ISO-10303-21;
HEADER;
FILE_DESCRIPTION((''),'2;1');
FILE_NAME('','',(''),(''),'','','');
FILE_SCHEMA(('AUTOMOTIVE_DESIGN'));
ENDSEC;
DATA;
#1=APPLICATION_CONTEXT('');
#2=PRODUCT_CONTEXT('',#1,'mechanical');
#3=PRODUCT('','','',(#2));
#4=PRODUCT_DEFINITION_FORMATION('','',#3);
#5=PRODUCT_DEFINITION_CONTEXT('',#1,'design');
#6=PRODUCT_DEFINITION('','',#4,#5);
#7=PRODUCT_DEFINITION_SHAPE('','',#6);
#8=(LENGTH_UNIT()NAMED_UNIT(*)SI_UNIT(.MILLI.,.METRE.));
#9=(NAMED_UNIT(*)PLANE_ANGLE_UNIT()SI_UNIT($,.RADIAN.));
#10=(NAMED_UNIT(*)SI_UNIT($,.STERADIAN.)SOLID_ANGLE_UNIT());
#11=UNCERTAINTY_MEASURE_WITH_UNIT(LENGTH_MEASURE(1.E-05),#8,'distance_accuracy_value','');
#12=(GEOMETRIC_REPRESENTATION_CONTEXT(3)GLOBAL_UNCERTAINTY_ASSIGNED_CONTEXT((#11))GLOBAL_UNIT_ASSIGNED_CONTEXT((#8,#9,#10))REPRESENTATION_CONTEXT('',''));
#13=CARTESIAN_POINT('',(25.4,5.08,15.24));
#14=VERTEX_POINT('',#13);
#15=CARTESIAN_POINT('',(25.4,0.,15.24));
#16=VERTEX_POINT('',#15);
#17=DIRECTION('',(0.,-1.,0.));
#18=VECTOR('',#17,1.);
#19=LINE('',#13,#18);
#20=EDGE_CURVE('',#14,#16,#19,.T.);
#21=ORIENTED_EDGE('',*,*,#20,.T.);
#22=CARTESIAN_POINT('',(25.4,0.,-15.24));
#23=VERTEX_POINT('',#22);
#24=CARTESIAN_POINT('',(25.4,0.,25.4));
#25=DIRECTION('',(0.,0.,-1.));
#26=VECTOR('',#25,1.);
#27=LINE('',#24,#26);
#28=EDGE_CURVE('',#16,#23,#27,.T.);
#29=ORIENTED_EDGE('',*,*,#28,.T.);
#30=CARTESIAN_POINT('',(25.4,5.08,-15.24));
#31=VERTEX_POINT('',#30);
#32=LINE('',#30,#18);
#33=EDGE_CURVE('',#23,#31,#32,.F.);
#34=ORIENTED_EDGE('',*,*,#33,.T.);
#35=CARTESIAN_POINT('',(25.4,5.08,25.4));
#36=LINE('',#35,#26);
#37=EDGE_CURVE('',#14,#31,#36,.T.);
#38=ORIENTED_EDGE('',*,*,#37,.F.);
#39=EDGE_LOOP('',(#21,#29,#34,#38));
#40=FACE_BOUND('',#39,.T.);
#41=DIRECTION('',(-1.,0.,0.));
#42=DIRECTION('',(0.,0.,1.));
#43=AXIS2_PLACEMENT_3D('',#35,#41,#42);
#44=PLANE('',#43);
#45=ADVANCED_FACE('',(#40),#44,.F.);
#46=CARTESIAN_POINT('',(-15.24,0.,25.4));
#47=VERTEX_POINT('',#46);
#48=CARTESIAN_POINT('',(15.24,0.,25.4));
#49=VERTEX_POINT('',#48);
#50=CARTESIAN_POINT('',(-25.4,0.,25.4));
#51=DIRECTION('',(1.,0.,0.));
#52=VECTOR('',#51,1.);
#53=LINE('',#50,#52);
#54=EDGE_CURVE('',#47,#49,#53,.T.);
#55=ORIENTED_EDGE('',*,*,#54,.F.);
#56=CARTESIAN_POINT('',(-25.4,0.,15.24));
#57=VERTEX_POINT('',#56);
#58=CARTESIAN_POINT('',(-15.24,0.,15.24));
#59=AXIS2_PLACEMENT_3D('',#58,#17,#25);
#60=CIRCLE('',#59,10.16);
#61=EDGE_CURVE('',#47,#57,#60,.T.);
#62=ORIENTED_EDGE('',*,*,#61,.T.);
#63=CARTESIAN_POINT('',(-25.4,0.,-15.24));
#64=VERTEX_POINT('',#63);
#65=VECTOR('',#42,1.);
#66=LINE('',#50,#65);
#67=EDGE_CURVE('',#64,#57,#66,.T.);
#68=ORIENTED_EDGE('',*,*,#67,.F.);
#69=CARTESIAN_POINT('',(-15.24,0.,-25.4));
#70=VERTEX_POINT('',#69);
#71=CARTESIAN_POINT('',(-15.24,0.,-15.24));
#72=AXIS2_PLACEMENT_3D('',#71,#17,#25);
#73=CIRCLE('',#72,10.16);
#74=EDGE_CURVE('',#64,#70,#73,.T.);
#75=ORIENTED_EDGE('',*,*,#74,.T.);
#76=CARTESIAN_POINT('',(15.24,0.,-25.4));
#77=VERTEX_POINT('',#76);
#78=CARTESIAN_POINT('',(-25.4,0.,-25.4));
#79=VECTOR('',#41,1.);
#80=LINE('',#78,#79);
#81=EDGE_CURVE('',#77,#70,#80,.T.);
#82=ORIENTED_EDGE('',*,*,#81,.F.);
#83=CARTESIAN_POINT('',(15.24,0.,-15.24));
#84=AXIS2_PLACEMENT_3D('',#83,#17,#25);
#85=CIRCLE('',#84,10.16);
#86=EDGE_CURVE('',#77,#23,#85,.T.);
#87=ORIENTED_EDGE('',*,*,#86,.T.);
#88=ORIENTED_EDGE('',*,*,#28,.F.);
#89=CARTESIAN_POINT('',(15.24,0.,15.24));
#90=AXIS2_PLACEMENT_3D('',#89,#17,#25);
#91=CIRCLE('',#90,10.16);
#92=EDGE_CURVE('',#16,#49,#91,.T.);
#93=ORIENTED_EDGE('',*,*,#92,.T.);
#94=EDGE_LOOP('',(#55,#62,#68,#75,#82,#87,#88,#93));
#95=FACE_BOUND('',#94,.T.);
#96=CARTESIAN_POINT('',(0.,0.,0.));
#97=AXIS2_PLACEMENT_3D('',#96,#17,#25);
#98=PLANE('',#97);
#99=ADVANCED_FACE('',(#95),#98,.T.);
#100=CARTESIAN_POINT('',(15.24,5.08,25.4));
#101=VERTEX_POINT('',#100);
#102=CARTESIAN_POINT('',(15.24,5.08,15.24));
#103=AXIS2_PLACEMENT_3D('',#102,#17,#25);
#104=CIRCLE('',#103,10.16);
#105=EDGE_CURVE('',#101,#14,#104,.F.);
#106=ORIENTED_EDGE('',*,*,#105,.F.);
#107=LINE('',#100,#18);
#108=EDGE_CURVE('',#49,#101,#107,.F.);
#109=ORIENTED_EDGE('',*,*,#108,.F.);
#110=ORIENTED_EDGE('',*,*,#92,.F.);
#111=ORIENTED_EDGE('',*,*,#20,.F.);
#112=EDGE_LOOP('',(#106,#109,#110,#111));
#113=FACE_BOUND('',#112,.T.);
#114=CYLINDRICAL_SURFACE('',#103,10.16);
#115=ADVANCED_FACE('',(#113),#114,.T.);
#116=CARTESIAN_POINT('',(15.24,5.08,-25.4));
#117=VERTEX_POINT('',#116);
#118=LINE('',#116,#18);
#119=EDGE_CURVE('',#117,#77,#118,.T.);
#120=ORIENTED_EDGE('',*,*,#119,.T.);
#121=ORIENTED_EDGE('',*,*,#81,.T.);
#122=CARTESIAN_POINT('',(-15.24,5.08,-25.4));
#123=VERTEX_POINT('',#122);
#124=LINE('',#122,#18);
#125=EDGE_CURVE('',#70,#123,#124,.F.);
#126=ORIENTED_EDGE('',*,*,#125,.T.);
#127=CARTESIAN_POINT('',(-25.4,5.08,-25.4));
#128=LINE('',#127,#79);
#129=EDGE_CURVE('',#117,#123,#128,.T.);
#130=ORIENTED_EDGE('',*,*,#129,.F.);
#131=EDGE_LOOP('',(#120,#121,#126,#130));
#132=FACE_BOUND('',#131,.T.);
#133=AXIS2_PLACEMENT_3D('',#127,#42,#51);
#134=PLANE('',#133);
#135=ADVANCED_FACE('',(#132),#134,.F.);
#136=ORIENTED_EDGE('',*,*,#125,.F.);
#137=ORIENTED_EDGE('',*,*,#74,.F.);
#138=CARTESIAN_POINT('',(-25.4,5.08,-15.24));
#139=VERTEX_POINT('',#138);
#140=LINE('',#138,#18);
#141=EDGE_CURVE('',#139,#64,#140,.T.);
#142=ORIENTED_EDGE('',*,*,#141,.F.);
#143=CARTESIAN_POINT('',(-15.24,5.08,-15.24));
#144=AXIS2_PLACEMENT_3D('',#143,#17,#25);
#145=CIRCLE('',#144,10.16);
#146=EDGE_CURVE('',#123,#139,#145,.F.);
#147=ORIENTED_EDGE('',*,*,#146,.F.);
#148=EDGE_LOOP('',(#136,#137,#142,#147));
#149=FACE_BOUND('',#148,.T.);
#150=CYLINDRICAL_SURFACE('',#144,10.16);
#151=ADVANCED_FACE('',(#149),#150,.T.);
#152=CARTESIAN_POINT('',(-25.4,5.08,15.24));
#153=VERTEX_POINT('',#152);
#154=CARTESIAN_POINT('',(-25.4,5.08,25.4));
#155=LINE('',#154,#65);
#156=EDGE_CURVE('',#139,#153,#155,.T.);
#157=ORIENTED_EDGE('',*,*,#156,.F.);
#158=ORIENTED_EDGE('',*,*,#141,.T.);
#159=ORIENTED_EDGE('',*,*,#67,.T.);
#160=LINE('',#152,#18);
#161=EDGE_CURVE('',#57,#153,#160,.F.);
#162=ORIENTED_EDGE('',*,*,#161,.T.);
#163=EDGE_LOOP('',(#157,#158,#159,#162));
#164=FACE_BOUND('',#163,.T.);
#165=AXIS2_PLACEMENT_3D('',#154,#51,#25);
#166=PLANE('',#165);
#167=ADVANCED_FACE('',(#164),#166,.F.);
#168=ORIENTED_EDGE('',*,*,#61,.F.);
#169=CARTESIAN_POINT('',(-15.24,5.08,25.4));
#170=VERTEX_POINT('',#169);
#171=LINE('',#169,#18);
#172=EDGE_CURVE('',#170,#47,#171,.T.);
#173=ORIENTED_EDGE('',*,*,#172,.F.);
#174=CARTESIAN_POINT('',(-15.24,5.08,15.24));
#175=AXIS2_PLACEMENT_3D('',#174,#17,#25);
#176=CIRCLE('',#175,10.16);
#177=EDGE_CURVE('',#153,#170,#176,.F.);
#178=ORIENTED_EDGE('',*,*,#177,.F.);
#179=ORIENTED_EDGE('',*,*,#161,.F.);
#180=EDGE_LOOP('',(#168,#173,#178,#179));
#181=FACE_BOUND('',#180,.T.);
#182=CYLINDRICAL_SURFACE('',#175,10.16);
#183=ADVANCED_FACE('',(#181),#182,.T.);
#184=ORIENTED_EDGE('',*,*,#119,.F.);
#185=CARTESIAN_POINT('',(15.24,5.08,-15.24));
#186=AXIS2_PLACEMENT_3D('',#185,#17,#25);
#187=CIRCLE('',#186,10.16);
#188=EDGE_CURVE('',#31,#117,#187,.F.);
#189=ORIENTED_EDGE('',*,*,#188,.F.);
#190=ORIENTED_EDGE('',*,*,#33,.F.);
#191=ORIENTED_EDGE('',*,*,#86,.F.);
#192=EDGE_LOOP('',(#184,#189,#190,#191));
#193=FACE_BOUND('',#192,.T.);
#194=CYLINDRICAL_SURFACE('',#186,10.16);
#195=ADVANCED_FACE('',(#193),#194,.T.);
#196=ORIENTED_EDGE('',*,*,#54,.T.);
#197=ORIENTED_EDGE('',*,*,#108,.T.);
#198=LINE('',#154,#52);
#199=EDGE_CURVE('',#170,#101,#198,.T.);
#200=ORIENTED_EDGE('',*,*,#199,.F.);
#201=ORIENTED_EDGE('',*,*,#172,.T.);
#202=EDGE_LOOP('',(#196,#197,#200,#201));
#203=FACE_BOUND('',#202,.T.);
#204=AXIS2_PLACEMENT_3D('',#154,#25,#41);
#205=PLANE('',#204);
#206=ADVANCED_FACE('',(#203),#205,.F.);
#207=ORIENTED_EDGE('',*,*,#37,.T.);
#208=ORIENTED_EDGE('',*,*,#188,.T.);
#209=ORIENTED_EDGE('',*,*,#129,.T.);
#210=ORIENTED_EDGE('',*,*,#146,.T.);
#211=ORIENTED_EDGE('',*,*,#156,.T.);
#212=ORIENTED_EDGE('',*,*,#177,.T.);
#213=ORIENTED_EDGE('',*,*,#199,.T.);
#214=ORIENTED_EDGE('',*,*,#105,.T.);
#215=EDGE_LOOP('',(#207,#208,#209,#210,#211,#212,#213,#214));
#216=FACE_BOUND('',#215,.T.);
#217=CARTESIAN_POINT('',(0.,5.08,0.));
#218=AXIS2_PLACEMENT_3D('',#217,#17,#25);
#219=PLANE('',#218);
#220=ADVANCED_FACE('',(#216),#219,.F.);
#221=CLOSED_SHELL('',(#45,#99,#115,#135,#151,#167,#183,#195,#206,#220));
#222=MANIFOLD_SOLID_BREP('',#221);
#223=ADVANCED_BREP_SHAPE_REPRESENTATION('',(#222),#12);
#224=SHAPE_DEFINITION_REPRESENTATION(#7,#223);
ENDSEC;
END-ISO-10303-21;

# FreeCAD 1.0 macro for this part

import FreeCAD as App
import Part
import Sketcher

V = App.Vector
Q = App.Units.Quantity


def edges_at(feature, points):
    """Names of the edges that pass closest to the given points."""
    edges = feature.Shape.Edges
    near = lambda p: min(range(len(edges)), key=lambda i: edges[i].distToShape(Part.Vertex(*p))[0])
    return sorted({f"Edge{near(p) + 1}" for p in points})

doc = App.newDocument("Part")
body = doc.addObject("PartDesign::Body", "Body")

# Sketch on XZ plane
sketch1 = body.newObject("Sketcher::SketchObject", "Sketch")
sketch1.AttachmentSupport = (doc.getObject("XZ_Plane"), [""])
sketch1.MapMode = "FlatFace"
sketch1.addGeometry(Part.LineSegment(V(-25, -25, 0), V(-25, 25, 0)), False)
sketch1.addGeometry(Part.LineSegment(V(-25, 25, 0), V(25, 25, 0)), False)
sketch1.addGeometry(Part.LineSegment(V(25, 25, 0), V(25, -25, 0)), False)
sketch1.addGeometry(Part.LineSegment(V(25, -25, 0), V(-25, -25, 0)), False)
sketch1.addConstraint(Sketcher.Constraint("Coincident", 0, 2, 1, 1))
sketch1.addConstraint(Sketcher.Constraint("Coincident", 1, 2, 2, 1))
sketch1.addConstraint(Sketcher.Constraint("Coincident", 2, 2, 3, 1))
sketch1.addConstraint(Sketcher.Constraint("Coincident", 3, 2, 0, 1))
sketch1.addConstraint(Sketcher.Constraint("Vertical", 0))
sketch1.addConstraint(Sketcher.Constraint("Horizontal", 1))
sketch1.addConstraint(Sketcher.Constraint("Vertical", 2))
sketch1.addConstraint(Sketcher.Constraint("Horizontal", 3))
sketch1.addConstraint(Sketcher.Constraint("Symmetric", 0, 2, 2, 2, -1, 1))
sketch1.addConstraint(Sketcher.Constraint("Equal", 3, 0))
sketch1.addConstraint(Sketcher.Constraint("DistanceX", 1, 1, 1, 2, Q("2 in")))
pad1 = body.newObject("PartDesign::Pad", "Pad")
pad1.Profile = sketch1
pad1.Length = Q("0.2 in")
pad1.Reversed = True
doc.recompute()

fillet = body.newObject("PartDesign::Fillet", "Fillet")
fillet.Base = (pad1, edges_at(pad1, [
    (25.4, 2.54, 25.4),
    (-25.4, 2.54, 25.4),
    (-25.4, 2.54, -25.4),
    (25.4, 2.54, -25.4),
]))
fillet.Radius = Q("0.4 in")

doc.recompute()
